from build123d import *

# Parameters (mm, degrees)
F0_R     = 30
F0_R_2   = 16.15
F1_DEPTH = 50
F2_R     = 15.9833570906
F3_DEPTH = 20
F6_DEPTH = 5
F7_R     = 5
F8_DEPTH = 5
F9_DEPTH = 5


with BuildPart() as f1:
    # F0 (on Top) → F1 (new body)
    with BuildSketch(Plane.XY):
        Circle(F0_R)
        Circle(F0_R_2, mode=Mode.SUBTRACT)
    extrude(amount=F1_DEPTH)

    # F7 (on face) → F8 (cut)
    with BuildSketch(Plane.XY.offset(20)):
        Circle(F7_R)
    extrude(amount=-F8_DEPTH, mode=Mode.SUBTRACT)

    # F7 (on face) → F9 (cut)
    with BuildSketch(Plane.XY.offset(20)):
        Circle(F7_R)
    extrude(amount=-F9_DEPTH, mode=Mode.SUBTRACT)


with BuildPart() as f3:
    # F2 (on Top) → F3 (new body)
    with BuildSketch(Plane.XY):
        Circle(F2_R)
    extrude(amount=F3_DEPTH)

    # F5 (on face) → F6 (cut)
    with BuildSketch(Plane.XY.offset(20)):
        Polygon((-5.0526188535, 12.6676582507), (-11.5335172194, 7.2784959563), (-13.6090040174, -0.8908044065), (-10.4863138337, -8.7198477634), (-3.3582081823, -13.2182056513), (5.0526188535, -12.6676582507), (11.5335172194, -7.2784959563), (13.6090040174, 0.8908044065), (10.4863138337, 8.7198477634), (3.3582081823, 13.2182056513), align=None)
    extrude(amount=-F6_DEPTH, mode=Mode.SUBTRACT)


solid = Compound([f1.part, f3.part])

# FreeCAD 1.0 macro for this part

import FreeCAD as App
import Part
import Sketcher
from FreeCAD import Vector
Q = App.Units.Quantity


def add_polygon(sketch, points):
    """Adds a closed chain of lines whose ends are joined by coincident constraints."""
    first, n = sketch.GeometryCount, len(points)
    for a, b in zip(points, points[1:] + points[:1]):
        sketch.addGeometry(Part.LineSegment(App.Vector(*a, 0), App.Vector(*b, 0)), False)
    for i in range(n):
        sketch.addConstraint(Sketcher.Constraint("Coincident", first + i, 2, first + (i + 1) % n, 1))

doc = App.newDocument("Part")
body = doc.addObject("PartDesign::Body", "Body")

sketch1 = body.newObject("Sketcher::SketchObject", "Sketch")
sketch1.AttachmentSupport = (doc.getObject("XY_Plane"), [""])
sketch1.MapMode = "FlatFace"
sketch1.addGeometry([
    Part.Circle(Vector(0, 0, 0), Vector(0, 0, 1), 30),
    Part.Circle(Vector(0, 0, 0), Vector(0, 0, 1), 16),
], False)
sketch1.addConstraint([
    Sketcher.Constraint("Coincident", 0, 3, -1, 1),
    Sketcher.Constraint("Coincident", 1, 3, -1, 1),
    Sketcher.Constraint("Diameter", 0, Q("60 mm")),
    Sketcher.Constraint("Diameter", 1, Q("32.3 mm")),
])
pad1 = body.newObject("PartDesign::Pad", "Pad")
pad1.Profile = sketch1
pad1.Length = 50

sketch2 = body.newObject("Sketcher::SketchObject", "Sketch001")
sketch2.AttachmentSupport = (doc.getObject("XY_Plane"), [""])
sketch2.MapMode = "FlatFace"
sketch2.AttachmentOffset = App.Placement(Vector(0, 0, 20), App.Rotation())
sketch2.addGeometry(Part.Circle(Vector(0, 0, 0), Vector(0, 0, 1), 5), False)
sketch2.addConstraint([
    Sketcher.Constraint("Coincident", 0, 3, -1, 1),
    Sketcher.Constraint("Diameter", 0, Q("10 mm")),
])
pocket1 = body.newObject("PartDesign::Pocket", "Pocket")
pocket1.Profile = sketch2
pocket1.Length = 5

sketch3 = body.newObject("Sketcher::SketchObject", "Sketch002")
sketch3.AttachmentSupport = (doc.getObject("XY_Plane"), [""])
sketch3.MapMode = "FlatFace"
sketch3.AttachmentOffset = App.Placement(Vector(0, 0, 20), App.Rotation())
sketch3.addGeometry(Part.Circle(Vector(0, 0, 0), Vector(0, 0, 1), 5), False)
sketch3.addConstraint([
    Sketcher.Constraint("Coincident", 0, 3, -1, 1),
    Sketcher.Constraint("Diameter", 0, Q("10 mm")),
])
pocket2 = body.newObject("PartDesign::Pocket", "Pocket001")
pocket2.Profile = sketch3
pocket2.Length = 5
body2 = doc.addObject("PartDesign::Body", "Body001")

sketch4 = body2.newObject("Sketcher::SketchObject", "Sketch003")
sketch4.AttachmentSupport = (doc.getObject("XY_Plane001"), [""])
sketch4.MapMode = "FlatFace"
sketch4.addGeometry(Part.Circle(Vector(0, 0, 0), Vector(0, 0, 1), 16), False)
sketch4.addConstraint([
    Sketcher.Constraint("Coincident", 0, 3, -1, 1),
    Sketcher.Constraint("Diameter", 0, Q("31.966714 mm")),
])
pad2 = body2.newObject("PartDesign::Pad", "Pad001")
pad2.Profile = sketch4
pad2.Length = 20

sketch5 = body2.newObject("Sketcher::SketchObject", "Sketch004")
sketch5.AttachmentSupport = (doc.getObject("XY_Plane001"), [""])
sketch5.MapMode = "FlatFace"
sketch5.AttachmentOffset = App.Placement(Vector(0, 0, 20), App.Rotation())
add_polygon(sketch5, [(-5, 13), (-12, 7), (-14, -1), (-10, -9), (-3, -13), (5, -13), (12, -7), (14, 1), (10, 9), (3, 13)])
sketch5.addConstraint([
    Sketcher.Constraint("Symmetric", 0, 2, 5, 2, -1, 1),
    Sketcher.Constraint("Symmetric", 1, 2, 6, 2, -1, 1),
    Sketcher.Constraint("Symmetric", 2, 2, 7, 2, -1, 1),
    Sketcher.Constraint("Symmetric", 3, 2, 8, 2, -1, 1),
    Sketcher.Constraint("Symmetric", 4, 2, 9, 2, -1, 1),
    Sketcher.Constraint("Equal", 0, 1),
    Sketcher.Constraint("Equal", 1, 2),
    Sketcher.Constraint("Equal", 2, 3),
    Sketcher.Constraint("Equal", 3, 4),
    Sketcher.Constraint("DistanceY", 1, 2, 0, 2, Q("8.1693 mm")),
    Sketcher.Constraint("DistanceY", 3, 2, 1, 2, Q("12.327401 mm")),
    Sketcher.Constraint("DistanceX", 4, 2, 5, 2, Q("6.480898 mm")),
    Sketcher.Constraint("DistanceX", 3, 2, -1, 1, Q("3.358208 mm")),
    Sketcher.Constraint("DistanceX", -1, 1, 4, 2, Q("5.052619 mm")),
    Sketcher.Constraint("DistanceY", 4, 2, -1, 1, Q("12.667658 mm")),
])
pocket3 = body2.newObject("PartDesign::Pocket", "Pocket002")
pocket3.Profile = sketch5
pocket3.Length = 5

doc.recompute()
